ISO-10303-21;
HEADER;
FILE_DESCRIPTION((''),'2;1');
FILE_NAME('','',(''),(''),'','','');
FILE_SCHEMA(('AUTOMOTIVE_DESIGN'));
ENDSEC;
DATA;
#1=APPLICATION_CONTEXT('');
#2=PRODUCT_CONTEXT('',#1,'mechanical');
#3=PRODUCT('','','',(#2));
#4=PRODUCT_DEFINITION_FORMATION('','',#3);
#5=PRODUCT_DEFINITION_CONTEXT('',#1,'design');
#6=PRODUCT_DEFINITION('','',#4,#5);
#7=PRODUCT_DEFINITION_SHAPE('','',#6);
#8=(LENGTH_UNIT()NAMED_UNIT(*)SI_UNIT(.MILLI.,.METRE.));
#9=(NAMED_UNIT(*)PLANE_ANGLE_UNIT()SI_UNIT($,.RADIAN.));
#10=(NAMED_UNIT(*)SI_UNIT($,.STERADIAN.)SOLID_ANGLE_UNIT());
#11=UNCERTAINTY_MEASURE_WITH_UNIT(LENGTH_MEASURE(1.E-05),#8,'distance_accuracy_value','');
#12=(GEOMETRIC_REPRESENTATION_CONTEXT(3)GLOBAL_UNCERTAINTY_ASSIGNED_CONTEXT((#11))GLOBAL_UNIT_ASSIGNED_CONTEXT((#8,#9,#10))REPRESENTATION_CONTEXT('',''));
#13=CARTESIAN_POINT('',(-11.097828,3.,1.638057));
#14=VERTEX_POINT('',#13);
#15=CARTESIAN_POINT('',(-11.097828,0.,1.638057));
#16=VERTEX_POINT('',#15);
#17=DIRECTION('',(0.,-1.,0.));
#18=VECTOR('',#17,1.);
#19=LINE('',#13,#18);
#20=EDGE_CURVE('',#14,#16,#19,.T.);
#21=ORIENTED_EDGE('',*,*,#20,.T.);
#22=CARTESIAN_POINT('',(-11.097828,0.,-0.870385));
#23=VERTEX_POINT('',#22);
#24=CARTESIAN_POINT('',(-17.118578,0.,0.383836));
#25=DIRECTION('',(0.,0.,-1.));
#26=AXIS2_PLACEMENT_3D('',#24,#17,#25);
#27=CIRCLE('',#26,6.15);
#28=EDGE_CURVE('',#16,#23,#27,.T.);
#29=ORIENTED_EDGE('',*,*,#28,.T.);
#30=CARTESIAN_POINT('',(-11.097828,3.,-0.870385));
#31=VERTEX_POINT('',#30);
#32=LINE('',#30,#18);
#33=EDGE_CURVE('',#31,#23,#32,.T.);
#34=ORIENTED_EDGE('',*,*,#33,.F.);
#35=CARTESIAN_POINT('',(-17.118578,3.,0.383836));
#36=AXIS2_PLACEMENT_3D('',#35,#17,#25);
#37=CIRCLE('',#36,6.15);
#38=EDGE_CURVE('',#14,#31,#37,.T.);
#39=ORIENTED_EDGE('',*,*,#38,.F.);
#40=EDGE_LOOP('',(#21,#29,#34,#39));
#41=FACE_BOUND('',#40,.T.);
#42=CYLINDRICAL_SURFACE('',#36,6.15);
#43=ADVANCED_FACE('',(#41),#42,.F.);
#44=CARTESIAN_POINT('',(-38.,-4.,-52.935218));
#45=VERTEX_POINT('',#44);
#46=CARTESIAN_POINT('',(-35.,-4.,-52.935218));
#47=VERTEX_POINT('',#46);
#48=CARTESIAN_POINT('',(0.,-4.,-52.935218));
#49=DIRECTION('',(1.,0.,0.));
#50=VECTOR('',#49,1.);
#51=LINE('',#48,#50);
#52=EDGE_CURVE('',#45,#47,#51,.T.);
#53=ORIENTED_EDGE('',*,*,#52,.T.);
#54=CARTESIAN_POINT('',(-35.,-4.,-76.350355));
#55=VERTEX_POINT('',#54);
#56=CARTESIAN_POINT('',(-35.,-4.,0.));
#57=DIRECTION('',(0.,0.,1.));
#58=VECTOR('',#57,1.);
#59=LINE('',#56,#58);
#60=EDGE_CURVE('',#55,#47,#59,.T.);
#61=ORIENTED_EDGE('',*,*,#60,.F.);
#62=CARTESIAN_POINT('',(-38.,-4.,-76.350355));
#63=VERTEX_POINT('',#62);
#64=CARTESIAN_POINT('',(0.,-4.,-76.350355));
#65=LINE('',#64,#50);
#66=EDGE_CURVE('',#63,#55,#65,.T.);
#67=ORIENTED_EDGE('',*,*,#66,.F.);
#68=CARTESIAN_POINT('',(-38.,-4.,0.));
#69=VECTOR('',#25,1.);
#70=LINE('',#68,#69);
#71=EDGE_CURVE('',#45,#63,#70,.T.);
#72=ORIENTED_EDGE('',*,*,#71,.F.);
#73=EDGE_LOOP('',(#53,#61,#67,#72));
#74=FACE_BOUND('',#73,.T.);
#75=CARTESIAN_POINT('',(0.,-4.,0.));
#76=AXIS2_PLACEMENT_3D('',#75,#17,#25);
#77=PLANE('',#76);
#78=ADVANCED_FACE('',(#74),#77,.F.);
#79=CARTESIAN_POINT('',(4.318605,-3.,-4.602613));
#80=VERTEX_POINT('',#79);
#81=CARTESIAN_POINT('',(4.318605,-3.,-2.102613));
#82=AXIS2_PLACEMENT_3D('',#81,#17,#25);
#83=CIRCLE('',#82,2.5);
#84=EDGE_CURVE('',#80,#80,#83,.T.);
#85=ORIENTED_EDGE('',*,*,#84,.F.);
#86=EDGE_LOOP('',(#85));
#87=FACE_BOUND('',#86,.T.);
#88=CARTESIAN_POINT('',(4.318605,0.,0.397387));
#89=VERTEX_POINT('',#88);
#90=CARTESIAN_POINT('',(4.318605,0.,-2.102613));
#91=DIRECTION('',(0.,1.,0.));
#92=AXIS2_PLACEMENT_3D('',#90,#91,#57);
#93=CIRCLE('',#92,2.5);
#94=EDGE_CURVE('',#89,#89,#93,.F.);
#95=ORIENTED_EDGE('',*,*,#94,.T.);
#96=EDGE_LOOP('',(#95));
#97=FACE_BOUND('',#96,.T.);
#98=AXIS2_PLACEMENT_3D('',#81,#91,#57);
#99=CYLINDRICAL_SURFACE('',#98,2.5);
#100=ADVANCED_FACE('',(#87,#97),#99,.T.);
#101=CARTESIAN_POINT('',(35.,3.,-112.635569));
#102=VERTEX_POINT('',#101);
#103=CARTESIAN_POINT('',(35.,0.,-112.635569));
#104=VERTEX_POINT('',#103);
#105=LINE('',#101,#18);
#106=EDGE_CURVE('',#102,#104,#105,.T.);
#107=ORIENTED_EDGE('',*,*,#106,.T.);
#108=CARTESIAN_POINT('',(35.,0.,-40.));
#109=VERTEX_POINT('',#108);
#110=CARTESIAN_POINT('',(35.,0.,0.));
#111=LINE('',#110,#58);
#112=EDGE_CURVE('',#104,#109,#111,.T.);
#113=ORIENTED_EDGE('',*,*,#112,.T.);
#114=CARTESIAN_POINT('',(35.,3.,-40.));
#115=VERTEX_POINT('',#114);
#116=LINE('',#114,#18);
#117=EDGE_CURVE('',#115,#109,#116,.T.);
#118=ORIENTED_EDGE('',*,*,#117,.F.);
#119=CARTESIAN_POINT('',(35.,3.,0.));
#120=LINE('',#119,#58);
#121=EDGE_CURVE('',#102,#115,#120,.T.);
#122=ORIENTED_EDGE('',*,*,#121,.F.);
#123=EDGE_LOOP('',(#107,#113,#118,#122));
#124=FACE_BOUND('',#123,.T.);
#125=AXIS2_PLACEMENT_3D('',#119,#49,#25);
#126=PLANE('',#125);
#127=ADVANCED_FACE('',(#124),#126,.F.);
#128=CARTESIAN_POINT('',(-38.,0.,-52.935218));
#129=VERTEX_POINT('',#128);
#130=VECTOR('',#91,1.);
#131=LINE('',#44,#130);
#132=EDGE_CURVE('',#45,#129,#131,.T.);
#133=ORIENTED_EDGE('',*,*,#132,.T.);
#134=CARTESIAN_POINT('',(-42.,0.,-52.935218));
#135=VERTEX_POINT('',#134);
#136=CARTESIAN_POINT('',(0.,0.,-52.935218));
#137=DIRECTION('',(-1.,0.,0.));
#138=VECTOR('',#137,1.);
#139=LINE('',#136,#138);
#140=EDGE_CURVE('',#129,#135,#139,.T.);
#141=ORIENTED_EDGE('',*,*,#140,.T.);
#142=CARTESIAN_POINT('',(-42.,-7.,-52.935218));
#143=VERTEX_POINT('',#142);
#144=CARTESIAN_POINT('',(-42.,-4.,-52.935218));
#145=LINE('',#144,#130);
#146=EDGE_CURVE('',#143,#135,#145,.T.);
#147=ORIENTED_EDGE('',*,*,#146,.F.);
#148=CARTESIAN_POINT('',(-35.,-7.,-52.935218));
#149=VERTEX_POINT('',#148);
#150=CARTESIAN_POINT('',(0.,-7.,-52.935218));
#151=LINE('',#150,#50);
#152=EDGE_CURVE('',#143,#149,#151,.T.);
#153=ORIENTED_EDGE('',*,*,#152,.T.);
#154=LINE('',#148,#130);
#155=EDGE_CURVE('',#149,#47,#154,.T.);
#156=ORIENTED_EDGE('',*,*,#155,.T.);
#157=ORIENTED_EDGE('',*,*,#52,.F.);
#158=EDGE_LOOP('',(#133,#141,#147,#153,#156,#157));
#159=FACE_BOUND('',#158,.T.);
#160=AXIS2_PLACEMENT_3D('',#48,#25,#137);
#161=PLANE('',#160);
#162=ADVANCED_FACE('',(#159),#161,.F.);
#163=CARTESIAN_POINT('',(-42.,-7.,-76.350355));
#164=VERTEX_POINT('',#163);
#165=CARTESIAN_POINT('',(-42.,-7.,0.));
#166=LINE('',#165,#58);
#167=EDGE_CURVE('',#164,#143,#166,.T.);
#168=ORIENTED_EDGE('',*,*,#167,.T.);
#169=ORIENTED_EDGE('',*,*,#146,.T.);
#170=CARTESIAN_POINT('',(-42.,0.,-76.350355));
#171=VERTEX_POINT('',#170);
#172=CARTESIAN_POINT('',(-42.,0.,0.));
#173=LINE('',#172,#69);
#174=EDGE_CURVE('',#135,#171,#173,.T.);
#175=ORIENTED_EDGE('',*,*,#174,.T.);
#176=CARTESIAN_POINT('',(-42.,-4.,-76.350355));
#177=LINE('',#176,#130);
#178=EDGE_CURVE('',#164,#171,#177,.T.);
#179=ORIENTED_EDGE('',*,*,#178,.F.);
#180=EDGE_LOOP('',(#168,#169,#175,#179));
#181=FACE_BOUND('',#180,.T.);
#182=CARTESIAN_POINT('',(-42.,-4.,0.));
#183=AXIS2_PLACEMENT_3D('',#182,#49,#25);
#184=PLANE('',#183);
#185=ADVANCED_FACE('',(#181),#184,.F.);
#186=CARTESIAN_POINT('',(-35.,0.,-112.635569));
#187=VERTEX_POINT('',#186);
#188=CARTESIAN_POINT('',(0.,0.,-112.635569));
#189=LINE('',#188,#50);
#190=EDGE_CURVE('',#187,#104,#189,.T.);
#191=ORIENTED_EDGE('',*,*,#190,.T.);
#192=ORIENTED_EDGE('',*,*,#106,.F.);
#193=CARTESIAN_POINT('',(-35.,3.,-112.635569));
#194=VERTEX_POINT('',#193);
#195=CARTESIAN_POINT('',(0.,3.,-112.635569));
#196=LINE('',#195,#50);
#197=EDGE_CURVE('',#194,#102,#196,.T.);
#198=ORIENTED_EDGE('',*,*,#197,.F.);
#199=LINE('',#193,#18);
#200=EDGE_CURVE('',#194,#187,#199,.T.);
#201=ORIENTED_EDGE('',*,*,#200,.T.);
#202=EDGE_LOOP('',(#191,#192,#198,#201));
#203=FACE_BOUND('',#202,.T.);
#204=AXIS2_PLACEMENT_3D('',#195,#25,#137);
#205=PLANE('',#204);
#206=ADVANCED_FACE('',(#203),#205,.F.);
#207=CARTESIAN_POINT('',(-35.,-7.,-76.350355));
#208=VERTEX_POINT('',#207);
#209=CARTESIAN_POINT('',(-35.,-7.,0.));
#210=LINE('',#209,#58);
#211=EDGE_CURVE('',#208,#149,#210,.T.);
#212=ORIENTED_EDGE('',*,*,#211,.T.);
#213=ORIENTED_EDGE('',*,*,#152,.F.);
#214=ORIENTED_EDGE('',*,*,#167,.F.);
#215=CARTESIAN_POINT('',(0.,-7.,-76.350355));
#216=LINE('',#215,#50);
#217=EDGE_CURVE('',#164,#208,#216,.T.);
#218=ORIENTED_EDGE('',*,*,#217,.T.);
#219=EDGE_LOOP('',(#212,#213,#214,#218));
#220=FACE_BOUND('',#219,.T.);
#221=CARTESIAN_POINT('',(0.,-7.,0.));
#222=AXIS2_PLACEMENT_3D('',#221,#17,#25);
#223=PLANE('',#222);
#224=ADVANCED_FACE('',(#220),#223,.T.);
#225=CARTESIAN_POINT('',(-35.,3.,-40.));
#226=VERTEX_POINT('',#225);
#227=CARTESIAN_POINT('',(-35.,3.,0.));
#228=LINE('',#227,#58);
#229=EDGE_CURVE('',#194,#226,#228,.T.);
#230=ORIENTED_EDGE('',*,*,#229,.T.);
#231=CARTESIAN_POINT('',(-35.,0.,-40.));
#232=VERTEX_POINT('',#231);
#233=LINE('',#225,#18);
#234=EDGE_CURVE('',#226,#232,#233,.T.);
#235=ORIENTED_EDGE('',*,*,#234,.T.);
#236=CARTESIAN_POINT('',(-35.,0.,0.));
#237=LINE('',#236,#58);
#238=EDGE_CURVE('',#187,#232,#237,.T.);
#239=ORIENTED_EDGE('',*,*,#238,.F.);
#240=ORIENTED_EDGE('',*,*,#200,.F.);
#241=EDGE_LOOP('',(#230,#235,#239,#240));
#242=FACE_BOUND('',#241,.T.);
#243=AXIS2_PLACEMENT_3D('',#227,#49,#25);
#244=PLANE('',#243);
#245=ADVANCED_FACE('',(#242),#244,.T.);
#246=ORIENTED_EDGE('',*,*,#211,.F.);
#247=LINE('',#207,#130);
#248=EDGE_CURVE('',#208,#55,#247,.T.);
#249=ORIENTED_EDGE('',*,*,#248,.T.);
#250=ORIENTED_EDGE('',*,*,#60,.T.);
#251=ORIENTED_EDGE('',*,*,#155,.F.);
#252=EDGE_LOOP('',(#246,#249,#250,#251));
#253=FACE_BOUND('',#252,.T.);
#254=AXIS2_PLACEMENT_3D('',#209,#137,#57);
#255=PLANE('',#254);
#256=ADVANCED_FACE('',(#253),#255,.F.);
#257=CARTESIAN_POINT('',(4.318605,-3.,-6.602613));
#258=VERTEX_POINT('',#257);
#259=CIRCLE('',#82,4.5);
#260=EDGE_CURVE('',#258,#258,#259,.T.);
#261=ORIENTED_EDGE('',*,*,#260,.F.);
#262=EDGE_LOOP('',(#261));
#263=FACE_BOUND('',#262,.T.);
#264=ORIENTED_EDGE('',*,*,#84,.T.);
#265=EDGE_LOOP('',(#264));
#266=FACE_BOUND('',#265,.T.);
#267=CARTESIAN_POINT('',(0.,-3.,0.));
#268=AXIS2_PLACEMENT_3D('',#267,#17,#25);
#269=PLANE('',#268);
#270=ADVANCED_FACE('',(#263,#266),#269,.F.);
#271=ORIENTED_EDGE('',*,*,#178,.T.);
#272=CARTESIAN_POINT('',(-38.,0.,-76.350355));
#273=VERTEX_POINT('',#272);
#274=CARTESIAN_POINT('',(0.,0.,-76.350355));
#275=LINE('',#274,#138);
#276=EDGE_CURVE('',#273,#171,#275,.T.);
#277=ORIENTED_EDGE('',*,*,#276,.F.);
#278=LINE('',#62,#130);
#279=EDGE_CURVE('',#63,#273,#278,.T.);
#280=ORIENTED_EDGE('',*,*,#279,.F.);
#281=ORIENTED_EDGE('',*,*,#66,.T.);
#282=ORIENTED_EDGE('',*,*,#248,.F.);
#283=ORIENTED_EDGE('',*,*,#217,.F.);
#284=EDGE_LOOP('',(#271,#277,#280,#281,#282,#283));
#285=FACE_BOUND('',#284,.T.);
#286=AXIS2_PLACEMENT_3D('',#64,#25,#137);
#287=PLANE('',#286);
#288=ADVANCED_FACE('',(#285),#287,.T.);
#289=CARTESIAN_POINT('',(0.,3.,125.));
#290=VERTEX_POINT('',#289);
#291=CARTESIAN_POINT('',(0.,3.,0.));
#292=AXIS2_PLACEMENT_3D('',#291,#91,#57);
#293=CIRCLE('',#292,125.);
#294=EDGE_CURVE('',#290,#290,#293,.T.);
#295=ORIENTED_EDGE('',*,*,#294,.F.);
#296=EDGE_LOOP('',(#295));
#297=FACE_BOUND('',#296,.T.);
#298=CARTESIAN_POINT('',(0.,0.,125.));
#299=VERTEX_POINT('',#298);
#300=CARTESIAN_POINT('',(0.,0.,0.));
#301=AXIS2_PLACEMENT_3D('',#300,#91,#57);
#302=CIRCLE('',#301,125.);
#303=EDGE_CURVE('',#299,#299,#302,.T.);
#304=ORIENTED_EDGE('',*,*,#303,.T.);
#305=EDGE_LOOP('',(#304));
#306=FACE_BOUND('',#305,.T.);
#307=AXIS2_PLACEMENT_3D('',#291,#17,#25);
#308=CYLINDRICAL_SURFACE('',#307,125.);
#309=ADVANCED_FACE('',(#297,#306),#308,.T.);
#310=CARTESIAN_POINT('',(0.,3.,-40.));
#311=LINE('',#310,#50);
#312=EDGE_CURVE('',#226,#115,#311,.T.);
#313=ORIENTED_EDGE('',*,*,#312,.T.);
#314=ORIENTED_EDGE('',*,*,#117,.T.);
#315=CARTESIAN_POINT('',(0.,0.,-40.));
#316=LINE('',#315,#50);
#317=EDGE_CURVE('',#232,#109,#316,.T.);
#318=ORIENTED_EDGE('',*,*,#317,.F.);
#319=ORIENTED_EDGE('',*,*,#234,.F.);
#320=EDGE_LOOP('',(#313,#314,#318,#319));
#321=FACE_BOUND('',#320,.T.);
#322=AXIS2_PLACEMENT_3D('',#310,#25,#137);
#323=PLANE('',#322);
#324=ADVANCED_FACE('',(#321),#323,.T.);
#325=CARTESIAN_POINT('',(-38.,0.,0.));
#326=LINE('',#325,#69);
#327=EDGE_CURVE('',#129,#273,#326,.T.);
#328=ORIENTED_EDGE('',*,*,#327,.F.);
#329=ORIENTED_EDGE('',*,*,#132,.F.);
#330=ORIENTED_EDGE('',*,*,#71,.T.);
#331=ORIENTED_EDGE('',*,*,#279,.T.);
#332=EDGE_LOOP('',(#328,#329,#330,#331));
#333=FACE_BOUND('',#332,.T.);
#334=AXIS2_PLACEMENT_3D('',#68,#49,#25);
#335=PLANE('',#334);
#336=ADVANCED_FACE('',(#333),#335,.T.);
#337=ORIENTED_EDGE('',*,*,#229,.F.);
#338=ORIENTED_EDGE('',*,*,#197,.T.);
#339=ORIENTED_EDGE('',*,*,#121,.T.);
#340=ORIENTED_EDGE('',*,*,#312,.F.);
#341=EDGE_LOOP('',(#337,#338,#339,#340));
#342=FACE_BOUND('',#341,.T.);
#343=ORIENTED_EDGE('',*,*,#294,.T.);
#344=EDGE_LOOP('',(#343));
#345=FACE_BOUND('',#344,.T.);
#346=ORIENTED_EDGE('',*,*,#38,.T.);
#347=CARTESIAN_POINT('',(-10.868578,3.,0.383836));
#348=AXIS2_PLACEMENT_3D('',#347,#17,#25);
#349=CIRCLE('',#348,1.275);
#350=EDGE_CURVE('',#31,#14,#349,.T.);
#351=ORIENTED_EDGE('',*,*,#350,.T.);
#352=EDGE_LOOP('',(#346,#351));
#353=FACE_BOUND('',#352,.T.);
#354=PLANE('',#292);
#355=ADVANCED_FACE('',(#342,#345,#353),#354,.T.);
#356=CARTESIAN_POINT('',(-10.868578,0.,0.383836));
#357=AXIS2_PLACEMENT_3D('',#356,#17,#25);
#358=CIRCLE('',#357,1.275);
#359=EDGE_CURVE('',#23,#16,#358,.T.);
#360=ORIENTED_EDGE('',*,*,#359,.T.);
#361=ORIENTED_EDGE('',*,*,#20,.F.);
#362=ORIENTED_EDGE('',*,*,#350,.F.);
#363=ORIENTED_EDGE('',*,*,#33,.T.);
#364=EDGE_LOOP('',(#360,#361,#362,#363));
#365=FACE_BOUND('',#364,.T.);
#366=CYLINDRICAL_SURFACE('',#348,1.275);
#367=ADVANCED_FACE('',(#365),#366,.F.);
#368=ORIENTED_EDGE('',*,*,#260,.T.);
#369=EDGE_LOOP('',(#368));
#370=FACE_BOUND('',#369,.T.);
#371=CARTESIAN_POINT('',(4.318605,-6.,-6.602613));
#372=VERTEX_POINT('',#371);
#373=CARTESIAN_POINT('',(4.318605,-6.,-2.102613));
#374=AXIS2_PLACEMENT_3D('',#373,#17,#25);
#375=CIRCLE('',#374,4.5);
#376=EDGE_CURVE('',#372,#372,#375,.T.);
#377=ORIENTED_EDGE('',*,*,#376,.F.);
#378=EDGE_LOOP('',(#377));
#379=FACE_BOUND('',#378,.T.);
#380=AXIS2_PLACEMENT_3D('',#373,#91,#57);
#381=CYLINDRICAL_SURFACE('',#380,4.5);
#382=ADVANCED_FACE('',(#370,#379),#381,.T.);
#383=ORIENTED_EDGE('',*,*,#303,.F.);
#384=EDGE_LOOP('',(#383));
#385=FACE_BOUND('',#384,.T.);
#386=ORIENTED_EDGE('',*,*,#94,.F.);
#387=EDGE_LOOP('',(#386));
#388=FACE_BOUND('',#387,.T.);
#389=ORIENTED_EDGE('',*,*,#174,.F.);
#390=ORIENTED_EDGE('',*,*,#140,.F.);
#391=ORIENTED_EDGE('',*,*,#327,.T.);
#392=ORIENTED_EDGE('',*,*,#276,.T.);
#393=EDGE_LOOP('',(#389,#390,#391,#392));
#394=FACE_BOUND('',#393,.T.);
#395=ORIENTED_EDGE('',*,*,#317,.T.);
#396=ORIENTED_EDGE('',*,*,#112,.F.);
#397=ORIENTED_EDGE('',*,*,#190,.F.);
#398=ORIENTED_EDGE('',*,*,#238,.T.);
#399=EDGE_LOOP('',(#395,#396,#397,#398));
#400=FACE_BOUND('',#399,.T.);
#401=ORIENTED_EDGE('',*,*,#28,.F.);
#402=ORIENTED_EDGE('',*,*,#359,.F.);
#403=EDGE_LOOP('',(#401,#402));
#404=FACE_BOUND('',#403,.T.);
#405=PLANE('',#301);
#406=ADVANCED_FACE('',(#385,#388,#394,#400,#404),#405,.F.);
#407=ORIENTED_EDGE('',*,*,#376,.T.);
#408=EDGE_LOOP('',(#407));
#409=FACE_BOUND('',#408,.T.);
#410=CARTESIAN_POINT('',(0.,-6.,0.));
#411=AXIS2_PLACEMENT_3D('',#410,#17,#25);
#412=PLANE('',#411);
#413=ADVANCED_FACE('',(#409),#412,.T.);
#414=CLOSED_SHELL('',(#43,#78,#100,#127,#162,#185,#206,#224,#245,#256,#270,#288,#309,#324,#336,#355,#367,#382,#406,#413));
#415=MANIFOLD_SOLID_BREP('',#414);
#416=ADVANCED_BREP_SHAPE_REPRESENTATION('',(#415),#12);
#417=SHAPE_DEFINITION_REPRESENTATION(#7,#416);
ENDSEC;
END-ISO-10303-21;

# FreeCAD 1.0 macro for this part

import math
import FreeCAD as App
import Part
import Sketcher
from FreeCAD import Vector


def add_polygon(sketch, points):
    """Adds a closed chain of lines whose ends are joined by coincident constraints."""
    first, n = sketch.GeometryCount, len(points)
    for a, b in zip(points, points[1:] + points[:1]):
        sketch.addGeometry(Part.LineSegment(App.Vector(*a, 0), App.Vector(*b, 0)), False)
    for i in range(n):
        sketch.addConstraint(Sketcher.Constraint("Coincident", first + i, 2, first + (i + 1) % n, 1))

doc = App.newDocument("Part")
body = doc.addObject("PartDesign::Body", "Body")

# Sketch on XZ plane
sketch1 = body.newObject("Sketcher::SketchObject", "Sketch")
sketch1.AttachmentSupport = (doc.getObject("XZ_Plane"), [""])
sketch1.MapMode = "FlatFace"
sketch1.addGeometry(Part.Circle(Vector(0, 0, 0), Vector(0, 0, 1), 125), False)  # 0
add_polygon(sketch1, [(35, -40), (-35, -40), (-35, -113), (35, -113)])  # lines 1-4
sketch1.addConstraint([
    Sketcher.Constraint("Horizontal", 1),
    Sketcher.Constraint("Vertical", 2),
    Sketcher.Constraint("Horizontal", 3),
    Sketcher.Constraint("Vertical", 4),
    Sketcher.Constraint("Coincident", 0, 3, -1, 1),
    Sketcher.Constraint("Diameter", 0, 250.0),
    Sketcher.Constraint("DistanceX", 1, 2, 1, 1, 70.0),
    Sketcher.Constraint("DistanceX", 1, 2, -1, 1, 35.0),
    Sketcher.Constraint("DistanceY", 1, 2, -1, 1, 40.0),
    Sketcher.Constraint("DistanceY", 2, 2, 2, 1, 72.635569),
])
pad1 = body.newObject("PartDesign::Pad", "Pad")
pad1.Profile = sketch1
pad1.Length = 3
pad1.Reversed = True

# Sketch on XZ plane
sketch2 = body.newObject("Sketcher::SketchObject", "Sketch001")
sketch2.AttachmentSupport = (doc.getObject("XZ_Plane"), [""])
sketch2.MapMode = "FlatFace"
add_polygon(sketch2, [(-42, -52.9), (-42, -76.4), (-38, -76.4), (-38, -52.9)])  # lines 0-3
sketch2.addConstraint([
    Sketcher.Constraint("Vertical", 0),
    Sketcher.Constraint("Horizontal", 1),
    Sketcher.Constraint("Vertical", 2),
    Sketcher.Constraint("Horizontal", 3),
    Sketcher.Constraint("DistanceX", 1, 1, 1, 2, 4.0),
    Sketcher.Constraint("DistanceX", 0, 2, -1, 1, 42.0),
    Sketcher.Constraint("DistanceY", 0, 2, 0, 1, 23.415137),
    Sketcher.Constraint("DistanceY", 0, 2, -1, 1, 76.350355),
])
pad2 = body.newObject("PartDesign::Pad", "Pad001")
pad2.Profile = sketch2
pad2.Length = 4

# Sketch on XZ plane
sketch3 = body.newObject("Sketcher::SketchObject", "Sketch002")
sketch3.AttachmentSupport = (doc.getObject("XZ_Plane"), [""])
sketch3.MapMode = "FlatFace"
sketch3.AttachmentOffset = App.Placement(Vector(0, 0, 4), App.Rotation())
add_polygon(sketch3, [(-42, -53), (-42, -76), (-35, -76), (-35, -53)])  # lines 0-3
sketch3.addConstraint([
    Sketcher.Constraint("Vertical", 0),
    Sketcher.Constraint("Horizontal", 1),
    Sketcher.Constraint("Vertical", 2),
    Sketcher.Constraint("Horizontal", 3),
    Sketcher.Constraint("DistanceX", 1, 1, 1, 2, 7.0),
    Sketcher.Constraint("DistanceX", 0, 2, -1, 1, 42.0),
    Sketcher.Constraint("DistanceY", 0, 2, 0, 1, 23.415137),
    Sketcher.Constraint("DistanceY", 0, 2, -1, 1, 76.350355),
])
pad3 = body.newObject("PartDesign::Pad", "Pad002")
pad3.Profile = sketch3
pad3.Length = 3

# Sketch on XZ plane
sketch4 = body.newObject("Sketcher::SketchObject", "Sketch003")
sketch4.AttachmentSupport = (doc.getObject("XZ_Plane"), [""])
sketch4.MapMode = "FlatFace"
sketch4.addGeometry(Part.Circle(Vector(4.3, -2.1, 0), Vector(0, 0, 1), 2.5), False)
sketch4.addConstraint([
    Sketcher.Constraint("Diameter", 0, 5.0),
    Sketcher.Constraint("DistanceX", -1, 1, 0, 3, 4.318605),
    Sketcher.Constraint("DistanceY", 0, 3, -1, 1, 2.102613),
])
pad4 = body.newObject("PartDesign::Pad", "Pad003")
pad4.Profile = sketch4
pad4.Length = 3

# Sketch on XZ plane
sketch5 = body.newObject("Sketcher::SketchObject", "Sketch004")
sketch5.AttachmentSupport = (doc.getObject("XZ_Plane"), [""])
sketch5.MapMode = "FlatFace"
sketch5.AttachmentOffset = App.Placement(Vector(0, 0, 3), App.Rotation())
sketch5.addGeometry(Part.Circle(Vector(4.3, -2.1, 0), Vector(0, 0, 1), 4.5), False)
sketch5.addConstraint([
    Sketcher.Constraint("Diameter", 0, 9.0),
    Sketcher.Constraint("DistanceX", -1, 1, 0, 3, 4.318605),
    Sketcher.Constraint("DistanceY", 0, 3, -1, 1, 2.102613),
])
pad5 = body.newObject("PartDesign::Pad", "Pad004")
pad5.Profile = sketch5
pad5.Length = 3

# Sketch on XZ plane
sketch6 = body.newObject("Sketcher::SketchObject", "Sketch005")
sketch6.AttachmentSupport = (doc.getObject("XZ_Plane"), [""])
sketch6.MapMode = "FlatFace"
sketch6.addGeometry([
    Part.ArcOfCircle(Part.Circle(Vector(-17.1, 0.4, 0), Vector(0, 0, 1), 6.2), math.radians(12), math.radians(348)),
    Part.ArcOfCircle(Part.Circle(Vector(-10.9, 0.4, 0), Vector(0, 0, 1), 1.3), math.radians(-100), math.radians(100)),
], False)
sketch6.addConstraint([
    Sketcher.Constraint("Coincident", 0, 1, 1, 2),
    Sketcher.Constraint("Coincident", 1, 1, 0, 2),
    Sketcher.Constraint("Horizontal", 0, 3, 1, 3),
    Sketcher.Constraint("Radius", 0, 6.15),
    Sketcher.Constraint("Radius", 1, 1.275),
    Sketcher.Constraint("DistanceX", 0, 3, 1, 3, 6.25),
    Sketcher.Constraint("DistanceX", 0, 3, -1, 1, 17.118578),
    Sketcher.Constraint("DistanceY", -1, 1, 0, 3, 0.383836),
])
pocket1 = body.newObject("PartDesign::Pocket", "Pocket")
pocket1.Profile = sketch6
pocket1.Type = "ThroughAll"

doc.recompute()
